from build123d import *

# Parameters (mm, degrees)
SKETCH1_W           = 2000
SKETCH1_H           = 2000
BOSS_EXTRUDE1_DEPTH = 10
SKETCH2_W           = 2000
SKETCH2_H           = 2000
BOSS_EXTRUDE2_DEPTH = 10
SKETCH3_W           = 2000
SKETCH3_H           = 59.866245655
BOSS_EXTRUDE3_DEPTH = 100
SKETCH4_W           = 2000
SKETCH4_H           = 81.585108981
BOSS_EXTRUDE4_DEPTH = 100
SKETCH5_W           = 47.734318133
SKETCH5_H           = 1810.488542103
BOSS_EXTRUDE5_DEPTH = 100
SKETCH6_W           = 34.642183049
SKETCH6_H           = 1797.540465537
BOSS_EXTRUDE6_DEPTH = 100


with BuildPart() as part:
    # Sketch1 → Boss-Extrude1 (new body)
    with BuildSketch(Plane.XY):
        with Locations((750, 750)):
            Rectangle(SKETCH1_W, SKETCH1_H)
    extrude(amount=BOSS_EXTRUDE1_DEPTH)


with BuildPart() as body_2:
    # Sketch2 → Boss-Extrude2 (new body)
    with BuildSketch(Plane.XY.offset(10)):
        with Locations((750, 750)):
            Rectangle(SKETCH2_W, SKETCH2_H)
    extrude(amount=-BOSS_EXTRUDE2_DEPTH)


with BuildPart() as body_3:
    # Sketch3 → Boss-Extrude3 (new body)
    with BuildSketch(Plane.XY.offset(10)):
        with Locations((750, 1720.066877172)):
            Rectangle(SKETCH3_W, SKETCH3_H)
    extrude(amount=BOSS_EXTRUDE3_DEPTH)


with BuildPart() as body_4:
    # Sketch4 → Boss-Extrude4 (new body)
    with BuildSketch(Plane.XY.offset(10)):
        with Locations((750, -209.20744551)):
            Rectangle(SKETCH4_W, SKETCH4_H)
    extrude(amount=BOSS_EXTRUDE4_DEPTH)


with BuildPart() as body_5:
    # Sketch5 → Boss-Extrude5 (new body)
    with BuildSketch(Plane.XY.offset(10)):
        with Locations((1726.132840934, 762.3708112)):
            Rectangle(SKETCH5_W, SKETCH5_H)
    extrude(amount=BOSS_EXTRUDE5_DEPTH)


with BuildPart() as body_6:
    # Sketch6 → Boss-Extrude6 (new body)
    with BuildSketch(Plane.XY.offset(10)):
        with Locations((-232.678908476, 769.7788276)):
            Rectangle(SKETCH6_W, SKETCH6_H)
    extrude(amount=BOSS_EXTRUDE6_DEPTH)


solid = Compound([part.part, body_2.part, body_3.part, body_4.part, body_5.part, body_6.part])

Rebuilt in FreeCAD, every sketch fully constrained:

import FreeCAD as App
import Part
import Sketcher
from FreeCAD import Vector


def add_polygon(sketch, points):
    """Adds a closed chain of lines whose ends are joined by coincident constraints."""
    first, n = sketch.GeometryCount, len(points)
    for a, b in zip(points, points[1:] + points[:1]):
        sketch.addGeometry(Part.LineSegment(App.Vector(*a, 0), App.Vector(*b, 0)), False)
    for i in range(n):
        sketch.addConstraint(Sketcher.Constraint("Coincident", first + i, 2, first + (i + 1) % n, 1))

doc = App.newDocument("Part")
body = doc.addObject("PartDesign::Body", "Body")

sketch1 = body.newObject("Sketcher::SketchObject", "Sketch")
sketch1.AttachmentSupport = (doc.getObject("XY_Plane"), [""])
sketch1.MapMode = "FlatFace"
add_polygon(sketch1, [(-250, 1750), (-250, -250), (1750, -250), (1750, 1750)])
sketch1.addConstraint(Sketcher.Constraint("Vertical", 0))
sketch1.addConstraint(Sketcher.Constraint("Horizontal", 1))
sketch1.addConstraint(Sketcher.Constraint("Vertical", 2))
sketch1.addConstraint(Sketcher.Constraint("Horizontal", 3))
sketch1.addConstraint(Sketcher.Constraint("Equal", 3, 0))
sketch1.addConstraint(Sketcher.Constraint("DistanceX", 1, 1, 1, 2, 2000.0))
sketch1.addConstraint(Sketcher.Constraint("DistanceX", 0, 2, -1, 1, 250.0))
sketch1.addConstraint(Sketcher.Constraint("DistanceY", 0, 2, -1, 1, 250.0))
pad1 = body.newObject("PartDesign::Pad", "Pad")
pad1.Profile = sketch1
pad1.Length = 10
body2 = doc.addObject("PartDesign::Body", "Body001")

sketch2 = body2.newObject("Sketcher::SketchObject", "Sketch001")
sketch2.AttachmentSupport = (doc.getObject("XY_Plane001"), [""])
sketch2.MapMode = "FlatFace"
sketch2.AttachmentOffset = App.Placement(Vector(0, 0, 10), App.Rotation())
add_polygon(sketch2, [(-250, 1750), (-250, -250), (1750, -250), (1750, 1750)])
sketch2.addConstraint(Sketcher.Constraint("Vertical", 0))
sketch2.addConstraint(Sketcher.Constraint("Horizontal", 1))
sketch2.addConstraint(Sketcher.Constraint("Vertical", 2))
sketch2.addConstraint(Sketcher.Constraint("Horizontal", 3))
sketch2.addConstraint(Sketcher.Constraint("Equal", 3, 0))
sketch2.addConstraint(Sketcher.Constraint("DistanceX", 1, 1, 1, 2, 2000.0))
sketch2.addConstraint(Sketcher.Constraint("DistanceX", 0, 2, -1, 1, 250.0))
sketch2.addConstraint(Sketcher.Constraint("DistanceY", 0, 2, -1, 1, 250.0))
pad2 = body2.newObject("PartDesign::Pad", "Pad001")
pad2.Profile = sketch2
pad2.Length = 10
pad2.Reversed = True
body3 = doc.addObject("PartDesign::Body", "Body002")

sketch3 = body3.newObject("Sketcher::SketchObject", "Sketch002")
sketch3.AttachmentSupport = (doc.getObject("XY_Plane002"), [""])
sketch3.MapMode = "FlatFace"
sketch3.AttachmentOffset = App.Placement(Vector(0, 0, 10), App.Rotation())
add_polygon(sketch3, [(-250, 1750), (-250, 1690), (1750, 1690), (1750, 1750)])
sketch3.addConstraint(Sketcher.Constraint("Vertical", 0))
sketch3.addConstraint(Sketcher.Constraint("Horizontal", 1))
sketch3.addConstraint(Sketcher.Constraint("Vertical", 2))
sketch3.addConstraint(Sketcher.Constraint("Horizontal", 3))
sketch3.addConstraint(Sketcher.Constraint("DistanceX", 1, 1, 1, 2, 2000.0))
sketch3.addConstraint(Sketcher.Constraint("DistanceX", 0, 2, -1, 1, 250.0))
sketch3.addConstraint(Sketcher.Constraint("DistanceY", -1, 1, 2, 2, 1750.0))
sketch3.addConstraint(Sketcher.Constraint("DistanceY", 0, 2, 0, 1, 59.866246))
pad3 = body3.newObject("PartDesign::Pad", "Pad002")
pad3.Profile = sketch3
pad3.Length = 100
body4 = doc.addObject("PartDesign::Body", "Body003")

sketch4 = body4.newObject("Sketcher::SketchObject", "Sketch003")
sketch4.AttachmentSupport = (doc.getObject("XY_Plane003"), [""])
sketch4.MapMode = "FlatFace"
sketch4.AttachmentOffset = App.Placement(Vector(0, 0, 10), App.Rotation())
add_polygon(sketch4, [(-250, -168), (-250, -250), (1750, -250), (1750, -168)])
sketch4.addConstraint(Sketcher.Constraint("Vertical", 0))
sketch4.addConstraint(Sketcher.Constraint("Horizontal", 1))
sketch4.addConstraint(Sketcher.Constraint("Vertical", 2))
sketch4.addConstraint(Sketcher.Constraint("Horizontal", 3))
sketch4.addConstraint(Sketcher.Constraint("DistanceX", 1, 1, 1, 2, 2000.0))
sketch4.addConstraint(Sketcher.Constraint("DistanceX", 0, 2, -1, 1, 250.0))
sketch4.addConstraint(Sketcher.Constraint("DistanceY", 0, 2, -1, 1, 250.0))
sketch4.addConstraint(Sketcher.Constraint("DistanceY", 0, 2, 0, 1, 81.585109))
pad4 = body4.newObject("PartDesign::Pad", "Pad003")
pad4.Profile = sketch4
pad4.Length = 100
body5 = doc.addObject("PartDesign::Body", "Body004")

sketch5 = body5.newObject("Sketcher::SketchObject", "Sketch004")
sketch5.AttachmentSupport = (doc.getObject("XY_Plane004"), [""])
sketch5.MapMode = "FlatFace"
sketch5.AttachmentOffset = App.Placement(Vector(0, 0, 10), App.Rotation())
add_polygon(sketch5, [(1702, 1668), (1702, -143), (1750, -143), (1750, 1668)])
sketch5.addConstraint(Sketcher.Constraint("Vertical", 0))
sketch5.addConstraint(Sketcher.Constraint("Horizontal", 1))
sketch5.addConstraint(Sketcher.Constraint("Vertical", 2))
sketch5.addConstraint(Sketcher.Constraint("Horizontal", 3))
sketch5.addConstraint(Sketcher.Constraint("DistanceX", -1, 1, 1, 2, 1750.0))
sketch5.addConstraint(Sketcher.Constraint("DistanceX", 1, 1, 1, 2, 47.734318))
sketch5.addConstraint(Sketcher.Constraint("DistanceY", 0, 2, 0, 1, 1810.488542))
sketch5.addConstraint(Sketcher.Constraint("DistanceY", 0, 2, -1, 1, 142.87346))
pad5 = body5.newObject("PartDesign::Pad", "Pad004")
pad5.Profile = sketch5
pad5.Length = 100
body6 = doc.addObject("PartDesign::Body", "Body005")

sketch6 = body6.newObject("Sketcher::SketchObject", "Sketch005")
sketch6.AttachmentSupport = (doc.getObject("XY_Plane005"), [""])
sketch6.MapMode = "FlatFace"
sketch6.AttachmentOffset = App.Placement(Vector(0, 0, 10), App.Rotation())
add_polygon(sketch6, [(-250, 1669), (-250, -129), (-215, -129), (-215, 1669)])
sketch6.addConstraint(Sketcher.Constraint("Vertical", 0))
sketch6.addConstraint(Sketcher.Constraint("Horizontal", 1))
sketch6.addConstraint(Sketcher.Constraint("Vertical", 2))
sketch6.addConstraint(Sketcher.Constraint("Horizontal", 3))
sketch6.addConstraint(Sketcher.Constraint("DistanceX", 0, 2, -1, 1, 250.0))
sketch6.addConstraint(Sketcher.Constraint("DistanceX", 1, 1, 1, 2, 34.642183))
sketch6.addConstraint(Sketcher.Constraint("DistanceY", 0, 2, 0, 1, 1797.540466))
sketch6.addConstraint(Sketcher.Constraint("DistanceY", -1, 1, 2, 2, 1668.54906))
pad6 = body6.newObject("PartDesign::Pad", "Pad005")
pad6.Profile = sketch6
pad6.Length = 100

doc.recompute()
